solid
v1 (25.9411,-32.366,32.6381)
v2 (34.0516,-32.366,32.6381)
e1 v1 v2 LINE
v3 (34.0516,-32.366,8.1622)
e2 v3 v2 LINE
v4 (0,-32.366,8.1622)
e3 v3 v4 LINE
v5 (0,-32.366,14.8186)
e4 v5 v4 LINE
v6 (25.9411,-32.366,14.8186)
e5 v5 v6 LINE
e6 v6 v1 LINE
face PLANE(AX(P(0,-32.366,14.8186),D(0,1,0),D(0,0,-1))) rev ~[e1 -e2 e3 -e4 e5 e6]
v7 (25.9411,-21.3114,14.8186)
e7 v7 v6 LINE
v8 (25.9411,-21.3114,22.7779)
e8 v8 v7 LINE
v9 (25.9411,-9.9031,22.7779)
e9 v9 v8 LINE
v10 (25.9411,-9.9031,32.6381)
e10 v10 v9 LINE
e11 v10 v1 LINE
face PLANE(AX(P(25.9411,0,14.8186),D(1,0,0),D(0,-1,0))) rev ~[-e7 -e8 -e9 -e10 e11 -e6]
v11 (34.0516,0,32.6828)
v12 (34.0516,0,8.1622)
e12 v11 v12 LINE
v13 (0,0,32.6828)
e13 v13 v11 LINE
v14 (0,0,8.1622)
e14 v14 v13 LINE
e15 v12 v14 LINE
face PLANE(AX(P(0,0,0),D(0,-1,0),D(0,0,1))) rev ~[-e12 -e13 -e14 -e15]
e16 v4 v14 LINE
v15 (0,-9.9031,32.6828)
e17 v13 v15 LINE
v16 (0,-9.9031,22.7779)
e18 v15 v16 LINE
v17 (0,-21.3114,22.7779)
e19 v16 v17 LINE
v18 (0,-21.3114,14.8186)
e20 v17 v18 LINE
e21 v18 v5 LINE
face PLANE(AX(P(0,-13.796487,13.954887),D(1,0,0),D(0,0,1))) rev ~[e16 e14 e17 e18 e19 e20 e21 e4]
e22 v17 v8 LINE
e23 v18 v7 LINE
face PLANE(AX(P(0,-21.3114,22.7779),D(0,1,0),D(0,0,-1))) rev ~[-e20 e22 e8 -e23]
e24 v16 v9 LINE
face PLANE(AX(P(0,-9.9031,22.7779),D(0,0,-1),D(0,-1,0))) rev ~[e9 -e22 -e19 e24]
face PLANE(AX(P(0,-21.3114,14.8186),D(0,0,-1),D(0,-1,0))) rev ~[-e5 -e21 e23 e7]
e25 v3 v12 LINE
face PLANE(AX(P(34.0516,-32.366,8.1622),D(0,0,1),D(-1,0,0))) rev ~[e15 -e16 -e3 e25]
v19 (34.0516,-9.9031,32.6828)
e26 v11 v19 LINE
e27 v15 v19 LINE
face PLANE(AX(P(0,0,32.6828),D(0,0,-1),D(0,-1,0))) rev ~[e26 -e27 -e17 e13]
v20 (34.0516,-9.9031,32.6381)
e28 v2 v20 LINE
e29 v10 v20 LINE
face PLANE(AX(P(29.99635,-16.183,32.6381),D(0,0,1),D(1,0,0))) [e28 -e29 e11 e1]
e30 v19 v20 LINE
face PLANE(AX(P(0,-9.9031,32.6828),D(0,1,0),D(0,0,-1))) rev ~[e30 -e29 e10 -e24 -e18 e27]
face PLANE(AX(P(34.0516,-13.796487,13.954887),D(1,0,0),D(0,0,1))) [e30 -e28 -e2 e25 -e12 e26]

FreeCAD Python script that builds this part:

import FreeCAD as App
import Part
import Sketcher

V = App.Vector

doc = App.newDocument("Part")
body = doc.addObject("PartDesign::Body", "Body")

sketch1 = body.newObject("Sketcher::SketchObject", "Sketch")
sketch1.AttachmentSupport = (doc.getObject("YZ_Plane"), [""])
sketch1.MapMode = "FlatFace"
sketch1.addGeometry([
    Part.LineSegment(V(-21, 23, 0), V(-10, 23, 0)),
    Part.LineSegment(V(-10, 23, 0), V(-10, 33, 0)),
    Part.LineSegment(V(-10, 33, 0), V(0, 33, 0)),
    Part.LineSegment(V(0, 33, 0), V(0, 0, 0)),
    Part.LineSegment(V(0, 0, 0), V(-32, 0, 0)),
    Part.LineSegment(V(-32, 0, 0), V(-32, 15, 0)),
    Part.LineSegment(V(-32, 15, 0), V(-21, 15, 0)),
    Part.LineSegment(V(-21, 15, 0), V(-21, 23, 0)),
], False)
sketch1.addConstraint([
    Sketcher.Constraint("Coincident", 0, 2, 1, 1),
    Sketcher.Constraint("Coincident", 1, 2, 2, 1),
    Sketcher.Constraint("Coincident", 2, 2, 3, 1),
    Sketcher.Constraint("Coincident", 3, 2, 4, 1),
    Sketcher.Constraint("Coincident", 4, 2, 5, 1),
    Sketcher.Constraint("Coincident", 5, 2, 6, 1),
    Sketcher.Constraint("Coincident", 6, 2, 7, 1),
    Sketcher.Constraint("Coincident", 7, 2, 0, 1),
    Sketcher.Constraint("Horizontal", 0),
    Sketcher.Constraint("Vertical", 1),
    Sketcher.Constraint("Horizontal", 2),
    Sketcher.Constraint("Vertical", 3),
    Sketcher.Constraint("Horizontal", 4),
    Sketcher.Constraint("Vertical", 5),
    Sketcher.Constraint("Horizontal", 6),
    Sketcher.Constraint("Vertical", 7),
    Sketcher.Constraint("Coincident", 3, 2, -1, 1),
    Sketcher.Constraint("DistanceX", 2, 1, 2, 2, 9.903),
    Sketcher.Constraint("DistanceX", 4, 2, 4, 1, 32.366),
    Sketcher.Constraint("DistanceY", 1, 1, 1, 2, 9.905),
    Sketcher.Constraint("DistanceX", 0, 1, 0, 2, 11.4083),
    Sketcher.Constraint("DistanceY", 3, 2, 3, 1, 32.6828),
    Sketcher.Constraint("DistanceY", 5, 1, 5, 2, 14.8186),
])
pad1 = body.newObject("PartDesign::Pad", "Pad")
pad1.Profile = sketch1
pad1.Length = 34.0516

sketch2 = body.newObject("Sketcher::SketchObject", "Sketch001")
sketch2.AttachmentSupport = (doc.getObject("XY_Plane"), [""])
sketch2.MapMode = "FlatFace"
sketch2.AttachmentOffset = App.Placement(V(0, 0, 14.8186), App.Rotation())
sketch2.addGeometry([
    Part.LineSegment(V(26, 0, 0), V(26, -32, 0)),
    Part.LineSegment(V(26, -32, 0), V(34, -32, 0)),
    Part.LineSegment(V(34, -32, 0), V(34, 0, 0)),
    Part.LineSegment(V(34, 0, 0), V(26, 0, 0)),
], False)
sketch2.addConstraint([
    Sketcher.Constraint("Coincident", 0, 2, 1, 1),
    Sketcher.Constraint("Coincident", 1, 2, 2, 1),
    Sketcher.Constraint("Coincident", 2, 2, 3, 1),
    Sketcher.Constraint("Coincident", 3, 2, 0, 1),
    Sketcher.Constraint("Vertical", 0),
    Sketcher.Constraint("Horizontal", 1),
    Sketcher.Constraint("Vertical", 2),
    Sketcher.Constraint("Horizontal", 3),
    Sketcher.Constraint("PointOnObject", 2, 2, -1),
    Sketcher.Constraint("DistanceY", 0, 2, 0, 1, 32.366),
    Sketcher.Constraint("DistanceX", 1, 1, 1, 2, 8.1105),
    Sketcher.Constraint("DistanceX", -1, 1, 0, 2, 25.941),
])
pad2 = body.newObject("PartDesign::Pad", "Pad001")
pad2.Profile = sketch2
pad2.Length = 17.8195

sketch3 = body.newObject("Sketcher::SketchObject", "Sketch002")
sketch3.AttachmentSupport = (doc.getObject("XZ_Plane"), [""])
sketch3.MapMode = "FlatFace"
sketch3.AttachmentOffset = App.Placement(V(0, 0, 32.366), App.Rotation())
sketch3.addGeometry([
    Part.LineSegment(V(34, 0, 0), V(34, 8, 0)),
    Part.LineSegment(V(34, 8, 0), V(0, 8, 0)),
    Part.LineSegment(V(0, 8, 0), V(0, 0, 0)),
    Part.LineSegment(V(0, 0, 0), V(34, 0, 0)),
], False)
sketch3.addConstraint([
    Sketcher.Constraint("Coincident", 0, 2, 1, 1),
    Sketcher.Constraint("Coincident", 1, 2, 2, 1),
    Sketcher.Constraint("Coincident", 2, 2, 3, 1),
    Sketcher.Constraint("Coincident", 3, 2, 0, 1),
    Sketcher.Constraint("Vertical", 0),
    Sketcher.Constraint("Horizontal", 1),
    Sketcher.Constraint("Vertical", 2),
    Sketcher.Constraint("Horizontal", 3),
    Sketcher.Constraint("Coincident", 2, 2, -1, 1),
    Sketcher.Constraint("DistanceX", 1, 2, 1, 1, 34.0516),
    Sketcher.Constraint("DistanceY", 0, 1, 0, 2, 8.1622),
])
pocket1 = body.newObject("PartDesign::Pocket", "Pocket")
pocket1.Profile = sketch3
pocket1.Length = 75.3715

doc.recompute()
